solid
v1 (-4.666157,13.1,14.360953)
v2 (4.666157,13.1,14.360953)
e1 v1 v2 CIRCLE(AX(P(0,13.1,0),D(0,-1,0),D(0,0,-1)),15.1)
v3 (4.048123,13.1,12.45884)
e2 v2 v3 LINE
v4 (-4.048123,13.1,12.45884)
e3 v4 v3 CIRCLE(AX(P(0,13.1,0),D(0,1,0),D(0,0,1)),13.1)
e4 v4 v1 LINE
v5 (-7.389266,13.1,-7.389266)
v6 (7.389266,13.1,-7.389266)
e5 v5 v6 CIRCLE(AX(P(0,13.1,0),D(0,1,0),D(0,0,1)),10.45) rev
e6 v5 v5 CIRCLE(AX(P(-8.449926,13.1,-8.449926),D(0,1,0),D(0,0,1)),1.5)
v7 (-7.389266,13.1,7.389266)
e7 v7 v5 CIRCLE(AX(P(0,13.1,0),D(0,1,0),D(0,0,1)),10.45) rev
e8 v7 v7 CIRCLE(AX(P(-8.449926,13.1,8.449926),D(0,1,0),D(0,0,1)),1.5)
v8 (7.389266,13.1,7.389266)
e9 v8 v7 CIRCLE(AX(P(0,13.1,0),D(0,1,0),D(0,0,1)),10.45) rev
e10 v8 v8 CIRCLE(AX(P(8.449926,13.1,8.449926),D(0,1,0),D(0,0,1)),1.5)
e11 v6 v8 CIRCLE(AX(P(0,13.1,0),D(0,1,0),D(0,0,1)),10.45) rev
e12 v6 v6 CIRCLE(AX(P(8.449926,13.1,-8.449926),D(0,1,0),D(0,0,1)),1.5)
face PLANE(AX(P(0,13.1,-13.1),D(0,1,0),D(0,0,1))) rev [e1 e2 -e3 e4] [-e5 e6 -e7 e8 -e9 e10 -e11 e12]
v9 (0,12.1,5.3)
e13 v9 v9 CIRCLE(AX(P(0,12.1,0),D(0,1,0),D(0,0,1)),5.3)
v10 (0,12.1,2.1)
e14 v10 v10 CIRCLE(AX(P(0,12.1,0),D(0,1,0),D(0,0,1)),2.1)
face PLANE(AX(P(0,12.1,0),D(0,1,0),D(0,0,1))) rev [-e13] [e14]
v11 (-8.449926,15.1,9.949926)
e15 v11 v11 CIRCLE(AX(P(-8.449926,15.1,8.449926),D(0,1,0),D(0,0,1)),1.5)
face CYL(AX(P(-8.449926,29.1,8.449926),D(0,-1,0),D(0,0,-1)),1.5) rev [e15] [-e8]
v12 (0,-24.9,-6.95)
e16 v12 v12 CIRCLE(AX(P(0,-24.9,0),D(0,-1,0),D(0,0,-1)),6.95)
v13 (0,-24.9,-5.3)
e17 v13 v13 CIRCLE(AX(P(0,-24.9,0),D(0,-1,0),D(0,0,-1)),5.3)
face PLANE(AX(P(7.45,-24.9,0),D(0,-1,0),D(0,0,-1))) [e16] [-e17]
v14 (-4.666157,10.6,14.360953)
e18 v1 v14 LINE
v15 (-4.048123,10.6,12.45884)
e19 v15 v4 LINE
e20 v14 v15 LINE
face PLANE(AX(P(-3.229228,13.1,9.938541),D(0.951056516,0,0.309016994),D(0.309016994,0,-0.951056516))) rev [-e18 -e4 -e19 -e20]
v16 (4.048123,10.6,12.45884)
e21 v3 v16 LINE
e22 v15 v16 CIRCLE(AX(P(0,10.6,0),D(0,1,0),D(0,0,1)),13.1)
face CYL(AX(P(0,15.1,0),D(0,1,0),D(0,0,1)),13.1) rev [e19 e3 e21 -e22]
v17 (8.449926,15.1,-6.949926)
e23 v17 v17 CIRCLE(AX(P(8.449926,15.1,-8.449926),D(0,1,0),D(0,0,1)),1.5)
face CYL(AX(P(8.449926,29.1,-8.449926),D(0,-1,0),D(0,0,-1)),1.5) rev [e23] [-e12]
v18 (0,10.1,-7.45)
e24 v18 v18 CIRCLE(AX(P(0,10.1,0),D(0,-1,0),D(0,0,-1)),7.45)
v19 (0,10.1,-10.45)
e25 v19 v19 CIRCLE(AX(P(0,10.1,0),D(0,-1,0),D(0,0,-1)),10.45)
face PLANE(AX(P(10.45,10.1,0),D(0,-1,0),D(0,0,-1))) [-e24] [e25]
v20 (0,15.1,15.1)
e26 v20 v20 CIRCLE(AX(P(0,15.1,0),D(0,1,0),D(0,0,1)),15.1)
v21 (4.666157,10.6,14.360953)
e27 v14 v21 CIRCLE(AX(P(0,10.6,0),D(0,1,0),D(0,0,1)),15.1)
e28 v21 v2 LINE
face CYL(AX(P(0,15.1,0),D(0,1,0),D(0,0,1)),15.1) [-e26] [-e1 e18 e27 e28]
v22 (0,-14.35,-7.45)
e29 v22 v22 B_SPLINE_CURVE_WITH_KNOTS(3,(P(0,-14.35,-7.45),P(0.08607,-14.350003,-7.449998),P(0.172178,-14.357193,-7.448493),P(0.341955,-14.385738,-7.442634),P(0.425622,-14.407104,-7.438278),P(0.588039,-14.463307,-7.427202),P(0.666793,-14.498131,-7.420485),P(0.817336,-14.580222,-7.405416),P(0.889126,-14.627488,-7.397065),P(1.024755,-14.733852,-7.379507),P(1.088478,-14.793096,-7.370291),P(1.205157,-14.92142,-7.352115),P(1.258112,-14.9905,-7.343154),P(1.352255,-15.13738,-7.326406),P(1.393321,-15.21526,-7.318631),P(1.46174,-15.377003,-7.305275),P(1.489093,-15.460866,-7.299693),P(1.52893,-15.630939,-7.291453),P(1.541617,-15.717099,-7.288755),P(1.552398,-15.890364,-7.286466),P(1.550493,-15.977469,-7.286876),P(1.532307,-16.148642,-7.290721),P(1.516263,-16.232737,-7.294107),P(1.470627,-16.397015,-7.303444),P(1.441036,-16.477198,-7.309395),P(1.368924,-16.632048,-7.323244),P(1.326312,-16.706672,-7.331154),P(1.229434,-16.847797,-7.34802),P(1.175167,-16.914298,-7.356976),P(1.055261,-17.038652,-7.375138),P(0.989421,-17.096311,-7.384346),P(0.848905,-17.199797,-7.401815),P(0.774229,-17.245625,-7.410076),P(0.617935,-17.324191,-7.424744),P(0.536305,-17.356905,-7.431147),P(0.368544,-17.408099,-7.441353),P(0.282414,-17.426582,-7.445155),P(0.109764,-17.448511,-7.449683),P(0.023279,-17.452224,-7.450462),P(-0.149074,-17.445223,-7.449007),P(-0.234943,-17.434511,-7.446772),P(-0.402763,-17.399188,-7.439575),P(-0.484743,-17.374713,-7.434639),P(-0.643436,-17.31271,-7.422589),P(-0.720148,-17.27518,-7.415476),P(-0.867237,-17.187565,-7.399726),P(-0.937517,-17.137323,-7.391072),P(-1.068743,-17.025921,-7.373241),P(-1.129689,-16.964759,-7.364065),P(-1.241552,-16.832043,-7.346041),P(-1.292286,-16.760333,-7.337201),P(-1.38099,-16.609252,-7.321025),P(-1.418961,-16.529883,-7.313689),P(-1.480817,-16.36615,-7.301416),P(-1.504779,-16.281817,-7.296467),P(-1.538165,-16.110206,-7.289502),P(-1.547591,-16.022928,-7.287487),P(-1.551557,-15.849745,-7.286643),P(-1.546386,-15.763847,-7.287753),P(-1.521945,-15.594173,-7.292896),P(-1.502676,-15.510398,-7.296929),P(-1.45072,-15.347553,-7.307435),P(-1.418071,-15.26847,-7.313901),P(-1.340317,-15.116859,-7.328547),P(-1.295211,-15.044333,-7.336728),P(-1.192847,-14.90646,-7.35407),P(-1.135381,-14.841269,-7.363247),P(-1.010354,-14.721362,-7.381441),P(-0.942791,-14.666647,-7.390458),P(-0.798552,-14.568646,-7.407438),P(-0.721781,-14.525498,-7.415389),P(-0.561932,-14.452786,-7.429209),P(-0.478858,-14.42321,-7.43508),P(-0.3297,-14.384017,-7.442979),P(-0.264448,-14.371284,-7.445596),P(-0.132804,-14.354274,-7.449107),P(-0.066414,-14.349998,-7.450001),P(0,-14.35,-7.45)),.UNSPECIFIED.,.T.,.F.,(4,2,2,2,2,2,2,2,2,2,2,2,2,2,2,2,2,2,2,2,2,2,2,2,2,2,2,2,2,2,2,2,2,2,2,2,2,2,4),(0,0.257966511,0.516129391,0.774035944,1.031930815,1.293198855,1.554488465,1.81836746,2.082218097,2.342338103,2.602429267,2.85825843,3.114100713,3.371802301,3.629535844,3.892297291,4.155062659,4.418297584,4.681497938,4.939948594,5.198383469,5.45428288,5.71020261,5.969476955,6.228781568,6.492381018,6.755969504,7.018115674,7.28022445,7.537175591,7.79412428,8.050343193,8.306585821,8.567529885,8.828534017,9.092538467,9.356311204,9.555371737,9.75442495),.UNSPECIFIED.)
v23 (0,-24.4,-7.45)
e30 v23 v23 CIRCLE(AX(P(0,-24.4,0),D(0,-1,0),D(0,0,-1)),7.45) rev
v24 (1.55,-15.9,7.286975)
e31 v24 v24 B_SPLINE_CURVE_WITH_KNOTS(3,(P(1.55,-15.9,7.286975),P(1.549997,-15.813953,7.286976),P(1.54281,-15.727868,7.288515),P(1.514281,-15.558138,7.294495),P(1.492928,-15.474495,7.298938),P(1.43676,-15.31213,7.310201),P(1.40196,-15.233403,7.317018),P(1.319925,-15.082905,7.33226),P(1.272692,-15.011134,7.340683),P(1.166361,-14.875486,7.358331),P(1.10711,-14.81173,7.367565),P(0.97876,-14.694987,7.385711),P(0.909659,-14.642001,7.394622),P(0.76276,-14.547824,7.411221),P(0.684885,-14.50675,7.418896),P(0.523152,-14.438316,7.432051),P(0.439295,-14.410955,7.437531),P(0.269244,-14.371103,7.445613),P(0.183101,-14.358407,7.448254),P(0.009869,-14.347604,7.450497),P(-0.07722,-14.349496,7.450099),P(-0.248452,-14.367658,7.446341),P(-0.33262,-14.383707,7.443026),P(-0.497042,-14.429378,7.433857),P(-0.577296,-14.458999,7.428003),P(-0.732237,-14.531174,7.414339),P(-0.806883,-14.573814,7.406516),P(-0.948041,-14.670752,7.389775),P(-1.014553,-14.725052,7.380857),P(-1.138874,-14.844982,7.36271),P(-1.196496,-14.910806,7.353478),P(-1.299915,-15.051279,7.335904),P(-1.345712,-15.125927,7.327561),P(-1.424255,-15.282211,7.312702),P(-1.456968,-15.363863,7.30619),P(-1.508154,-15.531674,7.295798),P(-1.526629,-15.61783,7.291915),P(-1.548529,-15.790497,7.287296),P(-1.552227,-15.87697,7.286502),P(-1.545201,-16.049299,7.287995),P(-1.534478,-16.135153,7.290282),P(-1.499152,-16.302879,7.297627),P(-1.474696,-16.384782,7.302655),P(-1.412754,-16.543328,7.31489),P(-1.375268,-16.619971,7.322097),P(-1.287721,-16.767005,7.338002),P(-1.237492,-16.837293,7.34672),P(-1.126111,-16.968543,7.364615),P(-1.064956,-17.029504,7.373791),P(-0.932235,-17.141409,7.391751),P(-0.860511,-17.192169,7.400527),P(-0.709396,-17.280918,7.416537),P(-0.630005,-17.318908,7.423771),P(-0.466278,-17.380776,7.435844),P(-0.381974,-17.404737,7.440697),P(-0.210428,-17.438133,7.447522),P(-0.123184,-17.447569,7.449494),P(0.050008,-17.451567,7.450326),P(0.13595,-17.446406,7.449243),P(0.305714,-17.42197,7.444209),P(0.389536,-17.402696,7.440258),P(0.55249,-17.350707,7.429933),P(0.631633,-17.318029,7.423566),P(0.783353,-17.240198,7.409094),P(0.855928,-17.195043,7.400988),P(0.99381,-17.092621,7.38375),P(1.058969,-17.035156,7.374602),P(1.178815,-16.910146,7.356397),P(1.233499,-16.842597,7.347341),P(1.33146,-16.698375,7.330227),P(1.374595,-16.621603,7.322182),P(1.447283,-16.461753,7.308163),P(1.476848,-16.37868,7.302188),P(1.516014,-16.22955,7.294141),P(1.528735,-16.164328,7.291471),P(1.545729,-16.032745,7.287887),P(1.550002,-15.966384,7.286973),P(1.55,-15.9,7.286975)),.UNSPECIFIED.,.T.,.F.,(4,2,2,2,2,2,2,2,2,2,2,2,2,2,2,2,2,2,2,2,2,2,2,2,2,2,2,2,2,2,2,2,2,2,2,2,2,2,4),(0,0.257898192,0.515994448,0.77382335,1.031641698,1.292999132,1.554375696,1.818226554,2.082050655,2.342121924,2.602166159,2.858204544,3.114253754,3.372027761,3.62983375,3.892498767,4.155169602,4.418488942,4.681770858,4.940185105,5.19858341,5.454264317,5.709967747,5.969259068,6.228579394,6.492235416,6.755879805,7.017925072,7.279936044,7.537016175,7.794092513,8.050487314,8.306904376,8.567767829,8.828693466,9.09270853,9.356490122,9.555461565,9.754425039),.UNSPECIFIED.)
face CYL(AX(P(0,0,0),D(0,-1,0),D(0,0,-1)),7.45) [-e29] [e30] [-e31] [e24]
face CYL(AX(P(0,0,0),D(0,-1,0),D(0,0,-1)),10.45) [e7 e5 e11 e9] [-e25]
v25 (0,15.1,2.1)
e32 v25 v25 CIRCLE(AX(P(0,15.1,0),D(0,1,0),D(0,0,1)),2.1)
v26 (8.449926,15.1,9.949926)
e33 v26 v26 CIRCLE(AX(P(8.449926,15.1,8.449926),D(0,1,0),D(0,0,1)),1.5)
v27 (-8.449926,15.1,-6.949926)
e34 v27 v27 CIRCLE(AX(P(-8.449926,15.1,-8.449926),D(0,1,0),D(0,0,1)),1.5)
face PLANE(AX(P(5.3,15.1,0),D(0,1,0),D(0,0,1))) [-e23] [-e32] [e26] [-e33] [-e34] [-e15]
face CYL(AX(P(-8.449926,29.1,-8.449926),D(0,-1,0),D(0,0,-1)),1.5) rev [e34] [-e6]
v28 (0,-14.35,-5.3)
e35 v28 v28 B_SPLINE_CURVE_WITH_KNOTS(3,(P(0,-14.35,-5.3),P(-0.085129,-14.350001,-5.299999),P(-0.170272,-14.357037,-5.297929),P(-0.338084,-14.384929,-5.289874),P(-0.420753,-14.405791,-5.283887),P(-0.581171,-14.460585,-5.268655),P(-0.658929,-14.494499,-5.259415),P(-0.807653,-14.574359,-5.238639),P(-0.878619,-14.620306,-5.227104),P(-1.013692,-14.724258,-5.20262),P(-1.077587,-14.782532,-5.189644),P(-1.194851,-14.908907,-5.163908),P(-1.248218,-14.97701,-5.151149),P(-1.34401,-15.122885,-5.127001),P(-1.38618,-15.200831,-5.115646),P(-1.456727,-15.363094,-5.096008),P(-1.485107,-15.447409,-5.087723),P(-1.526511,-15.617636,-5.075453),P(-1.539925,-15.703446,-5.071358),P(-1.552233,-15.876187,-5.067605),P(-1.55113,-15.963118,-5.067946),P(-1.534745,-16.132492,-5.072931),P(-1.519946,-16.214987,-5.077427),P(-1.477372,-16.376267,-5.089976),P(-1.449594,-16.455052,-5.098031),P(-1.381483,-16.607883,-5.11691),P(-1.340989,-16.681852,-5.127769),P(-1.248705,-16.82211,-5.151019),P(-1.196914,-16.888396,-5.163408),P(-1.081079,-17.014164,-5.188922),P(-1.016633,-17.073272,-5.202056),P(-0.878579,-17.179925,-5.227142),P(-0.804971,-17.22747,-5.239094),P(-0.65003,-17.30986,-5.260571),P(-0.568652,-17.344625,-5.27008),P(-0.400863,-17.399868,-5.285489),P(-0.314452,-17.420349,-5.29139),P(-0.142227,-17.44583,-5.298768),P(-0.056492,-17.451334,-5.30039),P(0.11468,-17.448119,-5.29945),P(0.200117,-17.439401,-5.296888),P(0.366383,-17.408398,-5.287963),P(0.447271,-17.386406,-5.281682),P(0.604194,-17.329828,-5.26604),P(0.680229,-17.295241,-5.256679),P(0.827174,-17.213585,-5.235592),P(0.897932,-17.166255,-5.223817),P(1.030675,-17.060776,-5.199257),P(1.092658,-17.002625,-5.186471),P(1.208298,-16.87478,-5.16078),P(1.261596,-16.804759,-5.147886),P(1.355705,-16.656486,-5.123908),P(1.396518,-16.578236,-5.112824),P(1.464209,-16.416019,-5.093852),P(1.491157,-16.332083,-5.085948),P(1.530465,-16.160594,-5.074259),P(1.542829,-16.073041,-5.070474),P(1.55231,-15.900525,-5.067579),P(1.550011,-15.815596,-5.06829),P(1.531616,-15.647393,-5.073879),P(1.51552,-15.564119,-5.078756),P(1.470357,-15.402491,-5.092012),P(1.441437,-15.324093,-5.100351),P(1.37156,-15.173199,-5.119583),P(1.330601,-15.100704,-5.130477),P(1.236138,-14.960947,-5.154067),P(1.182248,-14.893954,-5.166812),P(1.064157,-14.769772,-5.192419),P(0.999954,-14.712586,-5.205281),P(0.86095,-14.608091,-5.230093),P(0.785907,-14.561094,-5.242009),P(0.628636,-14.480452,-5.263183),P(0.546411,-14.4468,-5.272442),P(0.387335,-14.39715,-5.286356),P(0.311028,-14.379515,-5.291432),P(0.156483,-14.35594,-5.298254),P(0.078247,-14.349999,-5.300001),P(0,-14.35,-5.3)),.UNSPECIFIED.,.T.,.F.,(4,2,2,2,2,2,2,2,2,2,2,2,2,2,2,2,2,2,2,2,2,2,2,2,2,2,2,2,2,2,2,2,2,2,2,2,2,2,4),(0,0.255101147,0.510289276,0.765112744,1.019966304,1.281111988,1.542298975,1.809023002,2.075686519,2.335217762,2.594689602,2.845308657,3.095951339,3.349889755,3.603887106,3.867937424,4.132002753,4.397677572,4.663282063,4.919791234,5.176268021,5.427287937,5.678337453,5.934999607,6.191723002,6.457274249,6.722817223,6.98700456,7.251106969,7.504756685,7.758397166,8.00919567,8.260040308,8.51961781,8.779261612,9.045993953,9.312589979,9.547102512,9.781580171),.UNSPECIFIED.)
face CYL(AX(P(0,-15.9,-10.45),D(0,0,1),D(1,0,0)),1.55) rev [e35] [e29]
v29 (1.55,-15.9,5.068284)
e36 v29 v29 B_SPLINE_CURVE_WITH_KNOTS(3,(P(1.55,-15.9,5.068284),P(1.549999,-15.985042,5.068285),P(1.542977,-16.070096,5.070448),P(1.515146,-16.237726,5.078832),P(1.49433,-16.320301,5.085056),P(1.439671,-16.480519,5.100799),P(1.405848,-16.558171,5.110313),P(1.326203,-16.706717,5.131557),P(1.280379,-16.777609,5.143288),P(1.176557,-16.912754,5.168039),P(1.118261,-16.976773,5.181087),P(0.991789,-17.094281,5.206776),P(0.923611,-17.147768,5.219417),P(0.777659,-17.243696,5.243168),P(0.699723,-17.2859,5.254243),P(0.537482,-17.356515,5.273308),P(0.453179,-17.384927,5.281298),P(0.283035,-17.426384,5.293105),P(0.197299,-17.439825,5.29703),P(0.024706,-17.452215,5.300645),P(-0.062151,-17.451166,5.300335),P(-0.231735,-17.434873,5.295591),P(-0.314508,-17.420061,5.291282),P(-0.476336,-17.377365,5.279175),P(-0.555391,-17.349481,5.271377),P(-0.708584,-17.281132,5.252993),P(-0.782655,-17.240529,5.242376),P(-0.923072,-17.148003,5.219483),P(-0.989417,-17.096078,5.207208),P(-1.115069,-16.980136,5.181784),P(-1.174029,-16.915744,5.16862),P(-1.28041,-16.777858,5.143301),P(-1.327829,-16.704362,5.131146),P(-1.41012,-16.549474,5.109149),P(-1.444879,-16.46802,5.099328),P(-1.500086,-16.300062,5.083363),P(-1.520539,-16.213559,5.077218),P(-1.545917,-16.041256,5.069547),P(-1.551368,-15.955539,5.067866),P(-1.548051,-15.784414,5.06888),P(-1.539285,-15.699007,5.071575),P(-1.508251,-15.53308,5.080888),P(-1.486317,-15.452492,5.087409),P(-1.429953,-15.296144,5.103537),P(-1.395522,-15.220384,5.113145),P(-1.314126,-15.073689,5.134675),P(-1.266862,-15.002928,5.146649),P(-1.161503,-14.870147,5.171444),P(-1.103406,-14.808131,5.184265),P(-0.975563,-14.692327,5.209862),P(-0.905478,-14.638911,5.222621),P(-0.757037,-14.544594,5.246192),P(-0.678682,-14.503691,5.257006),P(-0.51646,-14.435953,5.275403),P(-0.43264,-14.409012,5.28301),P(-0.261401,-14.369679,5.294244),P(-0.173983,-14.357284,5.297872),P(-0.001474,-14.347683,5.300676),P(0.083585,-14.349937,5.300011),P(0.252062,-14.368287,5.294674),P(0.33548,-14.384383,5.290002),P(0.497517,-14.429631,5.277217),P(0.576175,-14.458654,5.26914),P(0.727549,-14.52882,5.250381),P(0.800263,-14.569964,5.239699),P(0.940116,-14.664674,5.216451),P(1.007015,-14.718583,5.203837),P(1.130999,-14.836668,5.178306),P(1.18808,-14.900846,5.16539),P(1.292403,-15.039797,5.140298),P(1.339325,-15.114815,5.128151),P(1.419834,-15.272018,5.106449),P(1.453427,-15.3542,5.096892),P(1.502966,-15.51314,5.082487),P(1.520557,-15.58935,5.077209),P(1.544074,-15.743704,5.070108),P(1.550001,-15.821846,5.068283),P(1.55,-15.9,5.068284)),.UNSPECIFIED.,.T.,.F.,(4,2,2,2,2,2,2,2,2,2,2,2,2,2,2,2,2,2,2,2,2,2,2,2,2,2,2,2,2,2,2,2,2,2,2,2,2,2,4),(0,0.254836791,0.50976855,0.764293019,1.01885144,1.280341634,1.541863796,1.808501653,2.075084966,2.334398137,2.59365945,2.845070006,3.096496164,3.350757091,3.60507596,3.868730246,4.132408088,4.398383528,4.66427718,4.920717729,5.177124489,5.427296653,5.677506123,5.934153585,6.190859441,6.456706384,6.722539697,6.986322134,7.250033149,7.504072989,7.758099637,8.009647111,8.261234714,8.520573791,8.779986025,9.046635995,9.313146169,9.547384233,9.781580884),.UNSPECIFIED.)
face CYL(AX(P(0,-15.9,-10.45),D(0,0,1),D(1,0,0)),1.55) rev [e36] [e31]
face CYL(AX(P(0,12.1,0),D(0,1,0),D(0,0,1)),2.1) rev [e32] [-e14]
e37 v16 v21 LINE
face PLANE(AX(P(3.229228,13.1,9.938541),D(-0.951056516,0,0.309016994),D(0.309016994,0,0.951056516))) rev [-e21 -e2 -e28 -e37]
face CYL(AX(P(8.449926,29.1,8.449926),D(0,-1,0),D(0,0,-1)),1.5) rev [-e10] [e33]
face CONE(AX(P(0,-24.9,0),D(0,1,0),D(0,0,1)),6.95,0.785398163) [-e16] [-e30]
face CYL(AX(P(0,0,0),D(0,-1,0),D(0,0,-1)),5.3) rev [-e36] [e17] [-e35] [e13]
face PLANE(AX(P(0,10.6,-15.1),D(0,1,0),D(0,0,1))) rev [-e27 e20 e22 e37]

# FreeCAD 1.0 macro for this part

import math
import FreeCAD as App
import Part
import Sketcher

V = App.Vector
Q = App.Units.Quantity


def edges_at(feature, points):
    """Names of the edges that pass closest to the given points."""
    edges = feature.Shape.Edges
    near = lambda p: min(range(len(edges)), key=lambda i: edges[i].distToShape(Part.Vertex(*p))[0])
    return sorted({f"Edge{near(p) + 1}" for p in points})


def add_polygon(sketch, points):
    """Adds a closed chain of lines whose ends are joined by coincident constraints."""
    first, n = sketch.GeometryCount, len(points)
    for a, b in zip(points, points[1:] + points[:1]):
        sketch.addGeometry(Part.LineSegment(App.Vector(*a, 0), App.Vector(*b, 0)), False)
    for i in range(n):
        sketch.addConstraint(Sketcher.Constraint("Coincident", first + i, 2, first + (i + 1) % n, 1))

doc = App.newDocument("Part")
body = doc.addObject("PartDesign::Body", "Body")

sketch1 = body.newObject("Sketcher::SketchObject", "Sketch")
sketch1.AttachmentSupport = (doc.getObject("XY_Plane"), [""])
sketch1.MapMode = "FlatFace"
add_polygon(sketch1, [(5.3, 15.1), (5.3, -24.9), (7.45, -24.9), (7.45, 10.1), (10.45, 10.1), (10.45, 15.1)])
sketch1.addConstraint([
    Sketcher.Constraint("Vertical", 0),
    Sketcher.Constraint("Horizontal", 1),
    Sketcher.Constraint("Vertical", 2),
    Sketcher.Constraint("Horizontal", 3),
    Sketcher.Constraint("Vertical", 4),
    Sketcher.Constraint("Horizontal", 5),
    Sketcher.Constraint("DistanceX", 3, 1, 3, 2, Q("3 mm")),
    Sketcher.Constraint("DistanceY", 0, 2, 0, 1, Q("40 mm")),
    Sketcher.Constraint("DistanceY", 2, 1, 2, 2, Q("35 mm")),
    Sketcher.Constraint("DistanceX", 1, 1, 1, 2, Q("2.15 mm")),
    Sketcher.Constraint("DistanceX", -1, 1, 0, 2, Q("5.3 mm")),
    Sketcher.Constraint("DistanceY", 0, 2, -1, 1, Q("24.9 mm")),
])
revolution = body.newObject("PartDesign::Revolution", "Revolution")
revolution.Profile = sketch1
revolution.ReferenceAxis = (sketch1, ["V_Axis"])
revolution.Angle = 360

sketch2 = body.newObject("Sketcher::SketchObject", "Sketch001")
sketch2.AttachmentSupport = (doc.getObject("XY_Plane"), [""])
sketch2.MapMode = "FlatFace"
sketch2.addGeometry(Part.Circle(V(0, -15.9, 0), V(0, 0, 1), 1.55), False)
sketch2.addConstraint([
    Sketcher.Constraint("PointOnObject", 0, 3, -2),
    Sketcher.Constraint("Diameter", 0, Q("3.1 mm")),
    Sketcher.Constraint("DistanceY", 0, 3, -1, 1, Q("15.9 mm")),
])
pocket1 = body.newObject("PartDesign::Pocket", "Pocket")
pocket1.Profile = sketch2
pocket1.Type = "ThroughAll"
pocket1.Midplane = True
doc.recompute()

chamfer = body.newObject("PartDesign::Chamfer", "Chamfer")
chamfer.Base = (pocket1, edges_at(pocket1, [(0, -24.9, 7.45)]))
chamfer.Size = 0.5

sketch3 = body.newObject("Sketcher::SketchObject", "Sketch002")
sketch3.AttachmentSupport = (doc.getObject("YZ_Plane"), [""])
sketch3.MapMode = "FlatFace"
add_polygon(sketch3, [(15.1, -15.1), (15.1, -10.409558), (13.1, -10.409558), (13.1, -13.1), (10.6, -13.1), (10.6, -15.1)])
sketch3.addConstraint([
    Sketcher.Constraint("Vertical", 0),
    Sketcher.Constraint("Horizontal", 1),
    Sketcher.Constraint("Vertical", 2),
    Sketcher.Constraint("Horizontal", 3),
    Sketcher.Constraint("Vertical", 4),
    Sketcher.Constraint("Horizontal", 5),
    Sketcher.Constraint("Equal", 1, 4),
    Sketcher.Constraint("DistanceX", 1, 2, 1, 1, Q("2 mm")),
    Sketcher.Constraint("DistanceX", 3, 2, 3, 1, Q("2.5 mm")),
    Sketcher.Constraint("DistanceX", -1, 1, 0, 2, Q("15.1 mm")),
    Sketcher.Constraint("DistanceY", 2, 2, -1, 1, Q("13.1 mm")),
    Sketcher.Constraint("DistanceY", 0, 1, 0, 2, Q("4.690442 mm")),
])
revolution2 = body.newObject("PartDesign::Revolution", "Revolution001")
revolution2.Profile = sketch3
revolution2.ReferenceAxis = (sketch3, ["H_Axis"])
revolution2.Angle = 360

sketch4 = body.newObject("Sketcher::SketchObject", "Sketch003")
sketch4.AttachmentSupport = (doc.getObject("XZ_Plane"), [""])
sketch4.MapMode = "FlatFace"
sketch4.AttachmentOffset = App.Placement(V(0, 0, -15.1), App.Rotation())
sketch4.addGeometry([
    Part.Circle(V(0, 0, 0), V(0, 0, 1), 5.3),
    Part.Circle(V(0, 0, 0), V(0, 0, 1), 2.1),
], False)
sketch4.addConstraint([
    Sketcher.Constraint("Coincident", 0, 3, -1, 1),
    Sketcher.Constraint("Coincident", 1, 3, -1, 1),
    Sketcher.Constraint("Diameter", 0, Q("10.6 mm")),
    Sketcher.Constraint("Diameter", 1, Q("4.2 mm")),
])
pad1 = body.newObject("PartDesign::Pad", "Pad")
pad1.Profile = sketch4
pad1.Length = 3

sketch5 = body.newObject("Sketcher::SketchObject", "Sketch004")
sketch5.AttachmentSupport = (doc.getObject("XZ_Plane"), [""])
sketch5.MapMode = "FlatFace"
sketch5.AttachmentOffset = App.Placement(V(0, 0, -10.1), App.Rotation())
sketch5.addGeometry([
    Part.Circle(V(-8.449926, 8.449926, 0), V(0, 0, 1), 1.5),
    Part.Circle(V(8.449926, 8.449926, 0), V(0, 0, 1), 1.5),
    Part.Circle(V(8.449926, -8.449926, 0), V(0, 0, 1), 1.5),
    Part.Circle(V(-8.449926, -8.449926, 0), V(0, 0, 1), 1.5),
], False)
sketch5.addConstraint([
    Sketcher.Constraint("Equal", 0, 1),
    Sketcher.Constraint("Equal", 1, 2),
    Sketcher.Constraint("Equal", 2, 3),
    Sketcher.Constraint("Symmetric", 0, 3, 2, 3, -1, 1),
    Sketcher.Constraint("Symmetric", 1, 3, 3, 3, -1, 1),
    Sketcher.Constraint("Symmetric", 0, 3, 1, 3, -2),
    Sketcher.Constraint("Diameter", 0, Q("3 mm")),
    Sketcher.Constraint("DistanceX", 0, 3, -1, 1, Q("8.449926 mm")),
    Sketcher.Constraint("DistanceY", -1, 1, 0, 3, Q("8.449926 mm")),
])
pocket2 = body.newObject("PartDesign::Pocket", "Pocket001")
pocket2.Profile = sketch5
pocket2.Length = 19

sketch6 = body.newObject("Sketcher::SketchObject", "Sketch005")
sketch6.AttachmentSupport = (doc.getObject("XZ_Plane"), [""])
sketch6.MapMode = "FlatFace"
sketch6.AttachmentOffset = App.Placement(V(0, 0, 24.9), App.Rotation())
sketch6.addGeometry([
    Part.LineSegment(V(-3.229228, 9.938541, 0), V(-5.325887, 16.391394, 0)),
    Part.ArcOfCircle(Part.Circle(V(0, 0, 0), V(0, 0, 1), 17.234932), math.radians(108), math.radians(432)),
    Part.LineSegment(V(5.325887, 16.391394, 0), V(3.229228, 9.938541, 0)),
    Part.ArcOfCircle(Part.Circle(V(0, 0, 0), V(0, 0, 1), 10.45), math.radians(108), math.radians(432)),
], False)
sketch6.addConstraint([
    Sketcher.Constraint("Coincident", 0, 2, 1, 1),
    Sketcher.Constraint("Coincident", 1, 2, 2, 1),
    Sketcher.Constraint("Coincident", 2, 2, 3, 2),
    Sketcher.Constraint("Coincident", 3, 1, 0, 1),
    Sketcher.Constraint("Coincident", 1, 3, -1, 1),
    Sketcher.Constraint("Coincident", 3, 3, -1, 1),
    Sketcher.Constraint("Horizontal", 0, 2, 1, 2),
    Sketcher.Constraint("Horizontal", 2, 2, 3, 1),
    Sketcher.Constraint("Angle", 0, Q("108 deg")),
    Sketcher.Constraint("Radius", 3, Q("10.45 mm")),
    Sketcher.Constraint("Radius", 1, Q("17.234932 mm")),
    Sketcher.Constraint("DistanceY", -1, 1, 2, 2, Q("9.938541 mm")),
])
pocket3 = body.newObject("PartDesign::Pocket", "Pocket002")
pocket3.Profile = sketch6
pocket3.Length = 38

doc.recompute()
